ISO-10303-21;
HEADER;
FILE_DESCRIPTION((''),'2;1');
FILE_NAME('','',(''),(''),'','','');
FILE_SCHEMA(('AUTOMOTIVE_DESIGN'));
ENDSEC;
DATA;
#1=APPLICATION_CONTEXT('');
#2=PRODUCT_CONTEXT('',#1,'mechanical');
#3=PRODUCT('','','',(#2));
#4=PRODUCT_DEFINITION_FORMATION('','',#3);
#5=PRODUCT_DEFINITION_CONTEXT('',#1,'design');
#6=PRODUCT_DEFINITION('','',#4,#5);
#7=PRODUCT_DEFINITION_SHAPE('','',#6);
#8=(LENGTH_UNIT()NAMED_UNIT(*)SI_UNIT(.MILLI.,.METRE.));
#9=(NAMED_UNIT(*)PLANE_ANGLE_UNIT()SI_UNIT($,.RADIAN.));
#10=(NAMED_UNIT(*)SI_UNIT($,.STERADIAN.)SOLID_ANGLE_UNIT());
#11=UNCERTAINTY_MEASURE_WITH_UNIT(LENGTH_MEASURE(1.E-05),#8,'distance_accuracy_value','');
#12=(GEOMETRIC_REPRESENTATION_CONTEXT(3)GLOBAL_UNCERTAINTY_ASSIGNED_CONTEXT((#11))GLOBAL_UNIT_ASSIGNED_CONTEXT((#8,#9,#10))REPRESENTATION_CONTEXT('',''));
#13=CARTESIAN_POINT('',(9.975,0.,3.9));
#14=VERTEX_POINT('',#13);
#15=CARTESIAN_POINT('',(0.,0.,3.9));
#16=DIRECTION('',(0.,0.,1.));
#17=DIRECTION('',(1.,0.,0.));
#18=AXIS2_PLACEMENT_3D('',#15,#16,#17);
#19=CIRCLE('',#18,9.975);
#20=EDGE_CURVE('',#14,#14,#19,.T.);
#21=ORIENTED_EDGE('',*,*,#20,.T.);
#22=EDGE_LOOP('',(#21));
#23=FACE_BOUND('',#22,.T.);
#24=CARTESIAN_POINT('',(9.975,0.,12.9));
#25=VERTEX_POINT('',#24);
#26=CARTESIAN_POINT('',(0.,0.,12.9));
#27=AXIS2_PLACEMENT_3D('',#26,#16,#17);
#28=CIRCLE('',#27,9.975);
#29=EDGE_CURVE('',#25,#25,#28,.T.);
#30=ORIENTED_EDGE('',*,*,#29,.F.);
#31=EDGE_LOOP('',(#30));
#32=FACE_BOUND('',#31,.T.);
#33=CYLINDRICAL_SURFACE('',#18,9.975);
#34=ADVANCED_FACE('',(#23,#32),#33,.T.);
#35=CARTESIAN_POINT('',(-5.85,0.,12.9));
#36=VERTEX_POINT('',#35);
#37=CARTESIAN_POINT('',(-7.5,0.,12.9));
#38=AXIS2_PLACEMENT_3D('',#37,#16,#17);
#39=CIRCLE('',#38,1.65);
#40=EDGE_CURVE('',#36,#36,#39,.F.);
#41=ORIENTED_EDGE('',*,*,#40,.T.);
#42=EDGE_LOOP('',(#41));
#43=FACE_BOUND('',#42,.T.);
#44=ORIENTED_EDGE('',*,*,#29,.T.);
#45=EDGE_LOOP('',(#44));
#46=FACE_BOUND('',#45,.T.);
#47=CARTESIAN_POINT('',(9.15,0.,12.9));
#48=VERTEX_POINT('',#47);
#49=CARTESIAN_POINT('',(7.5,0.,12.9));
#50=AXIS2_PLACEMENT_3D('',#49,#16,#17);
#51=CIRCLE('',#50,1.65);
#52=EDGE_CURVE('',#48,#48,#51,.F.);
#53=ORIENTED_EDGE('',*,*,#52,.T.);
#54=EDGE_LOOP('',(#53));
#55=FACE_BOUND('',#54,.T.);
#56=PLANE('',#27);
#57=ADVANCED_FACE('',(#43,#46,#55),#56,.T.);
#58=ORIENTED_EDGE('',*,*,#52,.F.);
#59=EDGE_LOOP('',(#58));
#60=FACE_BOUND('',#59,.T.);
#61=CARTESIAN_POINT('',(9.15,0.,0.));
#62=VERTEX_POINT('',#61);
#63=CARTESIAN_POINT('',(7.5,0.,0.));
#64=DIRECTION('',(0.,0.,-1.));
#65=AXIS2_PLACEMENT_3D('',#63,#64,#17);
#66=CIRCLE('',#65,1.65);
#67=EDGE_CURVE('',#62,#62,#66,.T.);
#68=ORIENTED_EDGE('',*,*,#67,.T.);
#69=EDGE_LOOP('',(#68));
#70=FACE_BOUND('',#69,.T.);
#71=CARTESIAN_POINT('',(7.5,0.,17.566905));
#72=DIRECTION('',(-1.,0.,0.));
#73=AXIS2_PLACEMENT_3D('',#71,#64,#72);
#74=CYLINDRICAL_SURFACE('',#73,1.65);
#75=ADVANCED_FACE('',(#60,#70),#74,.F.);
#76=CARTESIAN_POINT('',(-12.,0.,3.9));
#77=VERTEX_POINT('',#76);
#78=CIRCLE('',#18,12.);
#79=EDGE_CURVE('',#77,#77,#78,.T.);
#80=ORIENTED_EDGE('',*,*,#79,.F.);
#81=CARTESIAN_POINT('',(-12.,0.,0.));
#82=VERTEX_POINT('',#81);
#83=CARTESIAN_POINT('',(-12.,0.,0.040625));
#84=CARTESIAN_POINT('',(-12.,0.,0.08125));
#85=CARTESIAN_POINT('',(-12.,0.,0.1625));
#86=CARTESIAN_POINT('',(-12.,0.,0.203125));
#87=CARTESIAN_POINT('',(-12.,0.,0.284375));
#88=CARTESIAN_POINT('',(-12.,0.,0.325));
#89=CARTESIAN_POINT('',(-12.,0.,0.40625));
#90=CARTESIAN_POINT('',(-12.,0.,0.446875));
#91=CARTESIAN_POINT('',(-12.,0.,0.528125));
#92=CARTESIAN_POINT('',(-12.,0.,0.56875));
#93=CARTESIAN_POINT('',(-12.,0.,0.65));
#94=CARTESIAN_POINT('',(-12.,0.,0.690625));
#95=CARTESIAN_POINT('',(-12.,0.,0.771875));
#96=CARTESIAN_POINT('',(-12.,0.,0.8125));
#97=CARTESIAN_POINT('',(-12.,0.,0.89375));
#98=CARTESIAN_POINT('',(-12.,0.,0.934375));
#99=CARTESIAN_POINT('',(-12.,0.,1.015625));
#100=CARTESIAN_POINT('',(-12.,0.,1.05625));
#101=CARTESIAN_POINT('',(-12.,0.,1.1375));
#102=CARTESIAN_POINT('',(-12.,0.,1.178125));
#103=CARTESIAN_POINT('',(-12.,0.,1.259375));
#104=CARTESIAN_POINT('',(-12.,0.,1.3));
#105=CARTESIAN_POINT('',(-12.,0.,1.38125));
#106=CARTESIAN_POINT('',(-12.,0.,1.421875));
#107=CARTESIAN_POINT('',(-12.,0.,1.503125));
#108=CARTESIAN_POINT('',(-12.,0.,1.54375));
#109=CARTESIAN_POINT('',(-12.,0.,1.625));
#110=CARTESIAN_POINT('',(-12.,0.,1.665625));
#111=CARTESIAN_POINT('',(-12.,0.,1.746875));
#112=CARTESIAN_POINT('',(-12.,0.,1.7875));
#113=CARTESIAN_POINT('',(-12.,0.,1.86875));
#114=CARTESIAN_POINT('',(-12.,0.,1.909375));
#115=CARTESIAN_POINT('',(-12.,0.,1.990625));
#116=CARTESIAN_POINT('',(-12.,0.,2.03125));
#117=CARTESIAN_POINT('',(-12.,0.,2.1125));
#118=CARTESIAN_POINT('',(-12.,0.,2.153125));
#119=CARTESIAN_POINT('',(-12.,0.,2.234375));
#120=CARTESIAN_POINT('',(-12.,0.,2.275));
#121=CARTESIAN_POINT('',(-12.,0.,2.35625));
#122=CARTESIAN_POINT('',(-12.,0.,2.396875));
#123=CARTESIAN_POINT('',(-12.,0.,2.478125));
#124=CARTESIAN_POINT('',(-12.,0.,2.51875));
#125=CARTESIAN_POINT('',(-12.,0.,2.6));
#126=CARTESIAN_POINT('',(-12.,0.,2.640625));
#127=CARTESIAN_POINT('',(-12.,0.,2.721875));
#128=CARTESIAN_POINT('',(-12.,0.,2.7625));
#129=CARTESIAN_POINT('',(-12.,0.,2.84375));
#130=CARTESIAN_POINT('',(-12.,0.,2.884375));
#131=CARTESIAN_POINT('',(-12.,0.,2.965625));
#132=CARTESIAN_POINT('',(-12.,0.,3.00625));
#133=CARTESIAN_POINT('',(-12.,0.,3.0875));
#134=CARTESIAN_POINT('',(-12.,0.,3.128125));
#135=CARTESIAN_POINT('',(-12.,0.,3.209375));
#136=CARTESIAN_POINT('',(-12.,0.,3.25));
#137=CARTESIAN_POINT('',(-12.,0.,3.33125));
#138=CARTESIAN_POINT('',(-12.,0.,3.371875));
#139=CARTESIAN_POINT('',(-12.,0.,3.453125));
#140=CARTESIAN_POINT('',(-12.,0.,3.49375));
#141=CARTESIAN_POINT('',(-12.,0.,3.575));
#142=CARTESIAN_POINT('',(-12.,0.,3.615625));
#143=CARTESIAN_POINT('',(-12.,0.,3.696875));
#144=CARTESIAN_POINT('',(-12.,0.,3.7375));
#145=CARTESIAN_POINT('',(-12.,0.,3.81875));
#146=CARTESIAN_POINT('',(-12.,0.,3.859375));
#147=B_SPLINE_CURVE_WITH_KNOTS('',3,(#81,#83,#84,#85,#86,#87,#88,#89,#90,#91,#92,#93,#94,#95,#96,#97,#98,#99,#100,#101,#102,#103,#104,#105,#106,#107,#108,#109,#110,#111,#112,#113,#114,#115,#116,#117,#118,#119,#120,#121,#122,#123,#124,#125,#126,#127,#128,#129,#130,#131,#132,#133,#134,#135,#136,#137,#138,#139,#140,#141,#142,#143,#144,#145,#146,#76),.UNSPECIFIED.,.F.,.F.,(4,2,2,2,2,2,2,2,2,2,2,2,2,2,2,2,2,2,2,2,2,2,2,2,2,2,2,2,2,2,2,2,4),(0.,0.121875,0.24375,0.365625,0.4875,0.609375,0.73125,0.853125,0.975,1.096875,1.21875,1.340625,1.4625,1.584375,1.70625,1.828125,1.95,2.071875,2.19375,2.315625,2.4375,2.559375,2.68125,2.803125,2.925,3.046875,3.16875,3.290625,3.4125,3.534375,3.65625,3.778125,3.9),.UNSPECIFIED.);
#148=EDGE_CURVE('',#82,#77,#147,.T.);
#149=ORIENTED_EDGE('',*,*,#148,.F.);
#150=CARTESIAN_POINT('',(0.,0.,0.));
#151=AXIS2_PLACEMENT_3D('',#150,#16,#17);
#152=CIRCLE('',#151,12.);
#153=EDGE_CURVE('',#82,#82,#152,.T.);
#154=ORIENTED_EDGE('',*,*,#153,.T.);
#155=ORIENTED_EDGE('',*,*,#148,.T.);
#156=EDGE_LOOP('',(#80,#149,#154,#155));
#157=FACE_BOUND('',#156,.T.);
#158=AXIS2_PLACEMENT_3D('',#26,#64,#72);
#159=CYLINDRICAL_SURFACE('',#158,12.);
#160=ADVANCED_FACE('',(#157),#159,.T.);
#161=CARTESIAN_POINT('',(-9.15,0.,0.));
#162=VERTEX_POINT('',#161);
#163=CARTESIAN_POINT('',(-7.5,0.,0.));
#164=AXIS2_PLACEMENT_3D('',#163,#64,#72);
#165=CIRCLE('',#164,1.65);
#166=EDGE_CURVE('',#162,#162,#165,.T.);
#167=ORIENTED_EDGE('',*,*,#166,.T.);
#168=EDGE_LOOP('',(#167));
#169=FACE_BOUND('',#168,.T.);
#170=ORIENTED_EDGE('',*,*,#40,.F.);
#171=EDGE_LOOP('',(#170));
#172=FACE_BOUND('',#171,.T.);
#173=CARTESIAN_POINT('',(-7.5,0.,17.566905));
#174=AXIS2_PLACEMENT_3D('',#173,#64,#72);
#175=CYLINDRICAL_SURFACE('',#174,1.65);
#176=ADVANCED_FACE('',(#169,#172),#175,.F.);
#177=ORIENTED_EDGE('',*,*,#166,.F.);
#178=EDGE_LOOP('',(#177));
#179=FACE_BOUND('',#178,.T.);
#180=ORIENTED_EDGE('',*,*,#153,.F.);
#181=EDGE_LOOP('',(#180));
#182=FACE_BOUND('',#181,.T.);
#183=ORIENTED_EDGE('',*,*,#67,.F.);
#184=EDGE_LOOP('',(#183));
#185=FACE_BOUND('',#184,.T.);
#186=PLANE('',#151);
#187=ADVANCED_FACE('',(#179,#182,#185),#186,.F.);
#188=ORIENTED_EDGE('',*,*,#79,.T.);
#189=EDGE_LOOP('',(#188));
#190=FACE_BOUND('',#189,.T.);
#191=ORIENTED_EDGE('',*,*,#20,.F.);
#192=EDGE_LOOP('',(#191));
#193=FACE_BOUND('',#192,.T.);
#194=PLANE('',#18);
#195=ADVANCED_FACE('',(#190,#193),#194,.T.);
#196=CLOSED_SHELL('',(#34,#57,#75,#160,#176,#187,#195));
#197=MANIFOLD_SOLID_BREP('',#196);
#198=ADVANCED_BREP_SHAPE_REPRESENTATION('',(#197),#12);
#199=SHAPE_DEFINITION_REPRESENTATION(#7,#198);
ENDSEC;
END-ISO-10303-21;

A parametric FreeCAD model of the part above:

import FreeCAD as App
import Part
import Sketcher
from FreeCAD import Vector

doc = App.newDocument("Part")
body = doc.addObject("PartDesign::Body", "Body")

# Sketch on XY plane
sketch1 = body.newObject("Sketcher::SketchObject", "Sketch")
sketch1.AttachmentSupport = (doc.getObject("XY_Plane"), [""])
sketch1.MapMode = "FlatFace"
sketch1.addGeometry(Part.Circle(Vector(0, 0, 0), Vector(0, 0, 1), 12), False)
sketch1.addConstraint([
    Sketcher.Constraint("Coincident", 0, 3, -1, 1),
    Sketcher.Constraint("Diameter", 0, 24.0),
])
pad1 = body.newObject("PartDesign::Pad", "Pad")
pad1.Profile = sketch1
pad1.Length = 12.9

# Sketch on XY plane
sketch2 = body.newObject("Sketcher::SketchObject", "Sketch001")
sketch2.AttachmentSupport = (doc.getObject("XY_Plane"), [""])
sketch2.MapMode = "FlatFace"
sketch2.AttachmentOffset = App.Placement(Vector(0, 0, 3.9), App.Rotation())
sketch2.addGeometry([
    Part.Circle(Vector(0, 0, 0), Vector(0, 0, 1), 12),
    Part.Circle(Vector(0, 0, 0), Vector(0, 0, 1), 10),
], False)
sketch2.addConstraint([
    Sketcher.Constraint("Coincident", 0, 3, -1, 1),
    Sketcher.Constraint("Coincident", 1, 3, -1, 1),
    Sketcher.Constraint("Diameter", 0, 24.0),
    Sketcher.Constraint("Diameter", 1, 19.95),
])
pocket1 = body.newObject("PartDesign::Pocket", "Pocket")
pocket1.Profile = sketch2
pocket1.Length = 9
pocket1.Reversed = True

# Sketch on XY plane
sketch3 = body.newObject("Sketcher::SketchObject", "Sketch002")
sketch3.AttachmentSupport = (doc.getObject("XY_Plane"), [""])
sketch3.MapMode = "FlatFace"
sketch3.addGeometry([
    Part.Circle(Vector(-7.5, 0, 0), Vector(0, 0, 1), 1.6),
    Part.Circle(Vector(7.5, 0, 0), Vector(0, 0, 1), 1.6),
], False)
sketch3.addConstraint([
    Sketcher.Constraint("Equal", 0, 1),
    Sketcher.Constraint("Symmetric", 0, 3, 1, 3, -1, 1),
    Sketcher.Constraint("PointOnObject", 0, 3, -1),
    Sketcher.Constraint("Diameter", 0, 3.3),
    Sketcher.Constraint("DistanceX", 0, 3, 1, 3, 15.0),
])
pocket2 = body.newObject("PartDesign::Pocket", "Pocket001")
pocket2.Profile = sketch3
pocket2.Length = 12.9
pocket2.Reversed = True

doc.recompute()
